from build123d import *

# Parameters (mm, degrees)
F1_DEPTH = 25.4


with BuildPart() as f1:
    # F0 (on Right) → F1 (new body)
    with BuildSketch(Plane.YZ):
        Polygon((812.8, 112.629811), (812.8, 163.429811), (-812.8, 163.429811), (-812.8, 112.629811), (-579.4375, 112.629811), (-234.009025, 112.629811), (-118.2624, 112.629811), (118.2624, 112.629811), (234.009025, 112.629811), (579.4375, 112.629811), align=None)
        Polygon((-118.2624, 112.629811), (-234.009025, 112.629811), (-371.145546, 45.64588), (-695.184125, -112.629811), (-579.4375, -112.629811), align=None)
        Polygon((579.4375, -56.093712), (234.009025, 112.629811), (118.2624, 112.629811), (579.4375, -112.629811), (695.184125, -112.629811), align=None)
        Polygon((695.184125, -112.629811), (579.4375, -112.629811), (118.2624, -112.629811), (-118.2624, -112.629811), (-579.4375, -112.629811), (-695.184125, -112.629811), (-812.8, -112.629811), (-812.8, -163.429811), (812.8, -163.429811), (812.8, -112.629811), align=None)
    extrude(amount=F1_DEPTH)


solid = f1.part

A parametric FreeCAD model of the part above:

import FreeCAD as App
import Part
import Sketcher
Q = App.Units.Quantity


def add_polygon(sketch, points):
    """Adds a closed chain of lines whose ends are joined by coincident constraints."""
    first, n = sketch.GeometryCount, len(points)
    for a, b in zip(points, points[1:] + points[:1]):
        sketch.addGeometry(Part.LineSegment(App.Vector(*a, 0), App.Vector(*b, 0)), False)
    for i in range(n):
        sketch.addConstraint(Sketcher.Constraint("Coincident", first + i, 2, first + (i + 1) % n, 1))

doc = App.newDocument("Part")
body = doc.addObject("PartDesign::Body", "Body")

sketch1 = body.newObject("Sketcher::SketchObject", "Sketch")
sketch1.AttachmentSupport = (doc.getObject("YZ_Plane"), [""])
sketch1.MapMode = "FlatFace"
add_polygon(sketch1, [(813, 113), (813, 163), (-813, 163), (-813, 113), (-234, 113), (-371, 46), (-695, -113), (-813, -113), (-813, -163), (813, -163), (813, -113), (695, -113), (579, -56), (234, 113)])
add_polygon(sketch1, [(-579, -113), (-118, 113), (118, 113), (579, -113)])
sketch1.addConstraint([
    Sketcher.Constraint("Vertical", 0),
    Sketcher.Constraint("Horizontal", 1),
    Sketcher.Constraint("Vertical", 2),
    Sketcher.Constraint("Horizontal", 3),
    Sketcher.Constraint("Horizontal", 6),
    Sketcher.Constraint("Vertical", 7),
    Sketcher.Constraint("Horizontal", 8),
    Sketcher.Constraint("Vertical", 9),
    Sketcher.Constraint("Horizontal", 10),
    Sketcher.Constraint("Horizontal", 13),
    Sketcher.Constraint("Horizontal", 15),
    Sketcher.Constraint("Horizontal", 17),
    Sketcher.Constraint("Symmetric", 0, 2, 7, 2, -1, 1),
    Sketcher.Constraint("Symmetric", 2, 2, 9, 2, -1, 1),
    Sketcher.Constraint("Symmetric", 6, 2, 9, 2, -2),
    Sketcher.Constraint("Symmetric", 3, 2, 12, 2, -2),
    Sketcher.Constraint("Parallel", 4, 5),
    Sketcher.Constraint("Parallel", 11, 12),
    Sketcher.Constraint("Parallel", 5, 14),
    Sketcher.Constraint("Parallel", 12, 16),
    Sketcher.Constraint("Horizontal", 13, 2, 14, 2),
    Sketcher.Constraint("Horizontal", 10, 2, 16, 2),
    Sketcher.Constraint("Vertical", 11, 2, 16, 2),
    Sketcher.Constraint("Equal", 6, 10),
    Sketcher.Constraint("DistanceX", 1, 2, 1, 1, Q("64 in")),
    Sketcher.Constraint("DistanceY", 0, 1, 0, 2, Q("2 in")),
    Sketcher.Constraint("DistanceX", 15, 1, 15, 2, Q("9.312 in")),
    Sketcher.Constraint("DistanceX", 17, 2, 17, 1, Q("45.625 in")),
    Sketcher.Constraint("DistanceX", -1, 1, 11, 2, Q("22.8125 in")),
    Sketcher.Constraint("Distance", 5, 360.627502),
    Sketcher.Constraint("DistanceY", 10, 2, 11, 2, 56.536099),
    Sketcher.Constraint("Distance", 14, 513.248838),
])
pad1 = body.newObject("PartDesign::Pad", "Pad")
pad1.Profile = sketch1
pad1.Length = Q("1 in")

doc.recompute()
